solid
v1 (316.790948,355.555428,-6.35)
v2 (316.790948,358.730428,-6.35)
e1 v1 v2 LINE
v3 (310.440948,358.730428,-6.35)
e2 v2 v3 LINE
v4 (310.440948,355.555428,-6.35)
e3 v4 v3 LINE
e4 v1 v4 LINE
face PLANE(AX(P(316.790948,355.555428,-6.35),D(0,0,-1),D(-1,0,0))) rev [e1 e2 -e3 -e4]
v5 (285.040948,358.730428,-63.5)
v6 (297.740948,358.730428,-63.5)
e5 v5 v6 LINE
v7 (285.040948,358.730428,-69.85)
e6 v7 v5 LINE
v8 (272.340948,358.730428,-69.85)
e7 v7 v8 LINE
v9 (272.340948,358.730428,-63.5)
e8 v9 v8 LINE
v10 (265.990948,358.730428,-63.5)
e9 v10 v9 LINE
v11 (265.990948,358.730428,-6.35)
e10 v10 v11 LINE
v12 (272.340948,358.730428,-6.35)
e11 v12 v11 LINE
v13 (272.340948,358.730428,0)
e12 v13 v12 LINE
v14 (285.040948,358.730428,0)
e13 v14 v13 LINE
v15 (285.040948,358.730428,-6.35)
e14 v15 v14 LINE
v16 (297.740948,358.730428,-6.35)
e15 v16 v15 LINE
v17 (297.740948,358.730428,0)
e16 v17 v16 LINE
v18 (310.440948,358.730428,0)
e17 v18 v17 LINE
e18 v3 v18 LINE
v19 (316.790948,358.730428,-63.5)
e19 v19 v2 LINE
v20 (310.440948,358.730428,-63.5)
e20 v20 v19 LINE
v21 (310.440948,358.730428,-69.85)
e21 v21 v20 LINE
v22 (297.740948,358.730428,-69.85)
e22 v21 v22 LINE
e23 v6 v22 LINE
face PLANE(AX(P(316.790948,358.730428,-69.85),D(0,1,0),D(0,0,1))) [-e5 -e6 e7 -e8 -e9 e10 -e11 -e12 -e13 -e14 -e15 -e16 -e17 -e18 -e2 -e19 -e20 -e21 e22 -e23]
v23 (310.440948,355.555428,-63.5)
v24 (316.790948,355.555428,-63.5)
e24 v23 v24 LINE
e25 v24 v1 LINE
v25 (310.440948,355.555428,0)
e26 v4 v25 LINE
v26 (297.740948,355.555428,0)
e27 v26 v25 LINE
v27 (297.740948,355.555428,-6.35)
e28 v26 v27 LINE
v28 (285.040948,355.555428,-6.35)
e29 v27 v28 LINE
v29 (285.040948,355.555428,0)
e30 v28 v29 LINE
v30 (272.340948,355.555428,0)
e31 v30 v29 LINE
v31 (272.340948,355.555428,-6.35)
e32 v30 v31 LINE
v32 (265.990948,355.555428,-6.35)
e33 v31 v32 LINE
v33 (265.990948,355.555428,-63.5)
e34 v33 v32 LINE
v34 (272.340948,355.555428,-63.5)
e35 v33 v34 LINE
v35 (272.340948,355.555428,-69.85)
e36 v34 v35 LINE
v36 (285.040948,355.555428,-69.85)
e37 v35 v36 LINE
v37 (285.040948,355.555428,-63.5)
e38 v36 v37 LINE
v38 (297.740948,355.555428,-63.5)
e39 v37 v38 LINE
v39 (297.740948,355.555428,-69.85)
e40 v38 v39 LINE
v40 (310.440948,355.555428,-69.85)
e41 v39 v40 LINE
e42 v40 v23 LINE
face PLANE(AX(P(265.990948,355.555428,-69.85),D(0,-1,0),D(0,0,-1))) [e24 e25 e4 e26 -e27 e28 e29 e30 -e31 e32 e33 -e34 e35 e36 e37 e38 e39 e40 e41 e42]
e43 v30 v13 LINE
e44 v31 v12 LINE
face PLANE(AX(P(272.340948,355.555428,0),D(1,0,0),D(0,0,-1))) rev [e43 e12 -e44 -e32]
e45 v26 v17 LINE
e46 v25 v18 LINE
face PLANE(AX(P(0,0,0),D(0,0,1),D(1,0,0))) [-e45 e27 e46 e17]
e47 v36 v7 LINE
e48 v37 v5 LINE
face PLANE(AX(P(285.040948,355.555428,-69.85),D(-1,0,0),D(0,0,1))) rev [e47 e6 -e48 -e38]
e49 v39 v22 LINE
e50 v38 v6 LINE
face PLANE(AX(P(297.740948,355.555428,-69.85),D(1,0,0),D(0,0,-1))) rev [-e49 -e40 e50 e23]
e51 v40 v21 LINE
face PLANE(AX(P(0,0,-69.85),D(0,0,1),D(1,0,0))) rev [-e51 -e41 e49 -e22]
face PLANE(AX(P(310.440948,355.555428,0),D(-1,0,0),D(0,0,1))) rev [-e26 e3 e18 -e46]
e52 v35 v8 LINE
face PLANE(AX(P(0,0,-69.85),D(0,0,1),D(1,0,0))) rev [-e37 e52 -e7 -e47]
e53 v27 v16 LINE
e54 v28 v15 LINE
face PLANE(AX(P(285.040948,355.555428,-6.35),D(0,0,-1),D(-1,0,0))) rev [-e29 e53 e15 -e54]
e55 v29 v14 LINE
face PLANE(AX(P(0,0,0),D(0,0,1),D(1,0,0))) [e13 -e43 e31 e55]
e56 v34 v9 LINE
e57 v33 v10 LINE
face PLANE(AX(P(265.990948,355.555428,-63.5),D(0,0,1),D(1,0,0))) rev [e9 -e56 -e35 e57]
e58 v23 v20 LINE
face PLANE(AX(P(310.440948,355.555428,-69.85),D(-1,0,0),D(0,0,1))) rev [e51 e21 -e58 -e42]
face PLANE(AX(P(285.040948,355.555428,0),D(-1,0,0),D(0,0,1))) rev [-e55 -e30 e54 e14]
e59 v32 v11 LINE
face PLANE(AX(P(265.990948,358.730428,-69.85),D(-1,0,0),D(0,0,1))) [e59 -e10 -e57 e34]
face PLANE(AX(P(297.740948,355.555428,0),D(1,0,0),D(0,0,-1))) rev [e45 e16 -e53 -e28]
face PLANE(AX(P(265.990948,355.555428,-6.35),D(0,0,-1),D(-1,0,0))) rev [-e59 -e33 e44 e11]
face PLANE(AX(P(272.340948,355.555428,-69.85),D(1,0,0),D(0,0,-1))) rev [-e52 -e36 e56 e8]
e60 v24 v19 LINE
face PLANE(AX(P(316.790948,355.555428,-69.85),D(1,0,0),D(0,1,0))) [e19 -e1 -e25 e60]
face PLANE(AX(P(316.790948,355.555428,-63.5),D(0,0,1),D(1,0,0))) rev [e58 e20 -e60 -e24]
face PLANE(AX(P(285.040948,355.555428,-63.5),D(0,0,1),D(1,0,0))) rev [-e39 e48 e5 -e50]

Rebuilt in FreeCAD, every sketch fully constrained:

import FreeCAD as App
import Part
import Sketcher
Q = App.Units.Quantity


def add_polygon(sketch, points):
    """Adds a closed chain of lines whose ends are joined by coincident constraints."""
    first, n = sketch.GeometryCount, len(points)
    for a, b in zip(points, points[1:] + points[:1]):
        sketch.addGeometry(Part.LineSegment(App.Vector(*a, 0), App.Vector(*b, 0)), False)
    for i in range(n):
        sketch.addConstraint(Sketcher.Constraint("Coincident", first + i, 2, first + (i + 1) % n, 1))

doc = App.newDocument("Part")
params = doc.addObject("Spreadsheet::Sheet", "Params")
for row, (alias, value) in enumerate([
    ("sketch1_width", "2 in"),
    ("sketch1_height", "0.125 in"),
    ("pad1_length", "2.75 in"),
    ("sketch2_width", "0.5 in"),
], start=1):
    params.set(f"A{row}", alias)
    params.set(f"B{row}", "=" + value)
    params.setAlias(f"B{row}", alias)

body = doc.addObject("PartDesign::Body", "Body")

sketch1 = body.newObject("Sketcher::SketchObject", "Sketch")
sketch1.AttachmentSupport = (doc.getObject("XY_Plane"), [""])
sketch1.MapMode = "FlatFace"
add_polygon(sketch1, [(265.990948, 358.730428), (265.990948, 355.555428), (316.790948, 355.555428), (316.790948, 358.730428)])
sketch1.addConstraint(Sketcher.Constraint("Vertical", 0))
sketch1.addConstraint(Sketcher.Constraint("Horizontal", 1))
sketch1.addConstraint(Sketcher.Constraint("Vertical", 2))
sketch1.addConstraint(Sketcher.Constraint("Horizontal", 3))
sketch1.addConstraint(Sketcher.Constraint("DistanceX", 1, 1, 1, 2, Q("2 in")))
sketch1.addConstraint(Sketcher.Constraint("DistanceY", 0, 2, 0, 1, Q("0.125 in")))
sketch1.addConstraint(Sketcher.Constraint("DistanceX", -1, 1, 0, 2, 265.990948))
sketch1.addConstraint(Sketcher.Constraint("DistanceY", -1, 1, 0, 2, 355.555428))
sketch1.setExpression("Constraints[8]", "Params.sketch1_width")
sketch1.setExpression("Constraints[9]", "Params.sketch1_height")
pad1 = body.newObject("PartDesign::Pad", "Pad")
pad1.Profile = sketch1
pad1.setExpression("Length", "Params.pad1_length")
pad1.Reversed = True

sketch2 = body.newObject("Sketcher::SketchObject", "Sketch001")
sketch2.AttachmentSupport = (doc.getObject("XZ_Plane"), [""])
sketch2.MapMode = "FlatFace"
sketch2.AttachmentOffset = App.Placement(App.Vector(0, 0, -358.730428), App.Rotation())
add_polygon(sketch2, [(265.990948, -69.85), (265.990948, -63.5), (272.340948, -63.5), (272.340948, -69.85)])
add_polygon(sketch2, [(310.440948, -69.85), (310.440948, -63.5), (316.790948, -63.5), (316.790948, -69.85)])
add_polygon(sketch2, [(285.040948, -69.85), (285.040948, -63.5), (297.740948, -63.5), (297.740948, -69.85)])
add_polygon(sketch2, [(265.990948, -6.35), (265.990948, 0), (272.340948, 0), (272.340948, -6.35)])
add_polygon(sketch2, [(285.040948, -6.35), (285.040948, 0), (297.740948, 0), (297.740948, -6.35)])
add_polygon(sketch2, [(310.440948, -6.35), (310.440948, 0), (316.790948, 0), (316.790948, -6.35)])
sketch2.addConstraint(Sketcher.Constraint("Vertical", 0))
sketch2.addConstraint(Sketcher.Constraint("Horizontal", 1))
sketch2.addConstraint(Sketcher.Constraint("Vertical", 2))
sketch2.addConstraint(Sketcher.Constraint("Horizontal", 3))
sketch2.addConstraint(Sketcher.Constraint("Vertical", 4))
sketch2.addConstraint(Sketcher.Constraint("Horizontal", 5))
sketch2.addConstraint(Sketcher.Constraint("Vertical", 6))
sketch2.addConstraint(Sketcher.Constraint("Horizontal", 7))
sketch2.addConstraint(Sketcher.Constraint("Vertical", 8))
sketch2.addConstraint(Sketcher.Constraint("Horizontal", 9))
sketch2.addConstraint(Sketcher.Constraint("Vertical", 10))
sketch2.addConstraint(Sketcher.Constraint("Horizontal", 11))
sketch2.addConstraint(Sketcher.Constraint("Vertical", 12))
sketch2.addConstraint(Sketcher.Constraint("Horizontal", 13))
sketch2.addConstraint(Sketcher.Constraint("Vertical", 14))
sketch2.addConstraint(Sketcher.Constraint("Horizontal", 15))
sketch2.addConstraint(Sketcher.Constraint("Vertical", 16))
sketch2.addConstraint(Sketcher.Constraint("Horizontal", 17))
sketch2.addConstraint(Sketcher.Constraint("Vertical", 18))
sketch2.addConstraint(Sketcher.Constraint("Horizontal", 19))
sketch2.addConstraint(Sketcher.Constraint("Vertical", 20))
sketch2.addConstraint(Sketcher.Constraint("Horizontal", 21))
sketch2.addConstraint(Sketcher.Constraint("Vertical", 22))
sketch2.addConstraint(Sketcher.Constraint("Horizontal", 23))
sketch2.addConstraint(Sketcher.Constraint("PointOnObject", 12, 2, -1))
sketch2.addConstraint(Sketcher.Constraint("PointOnObject", 16, 2, -1))
sketch2.addConstraint(Sketcher.Constraint("PointOnObject", 20, 2, -1))
sketch2.addConstraint(Sketcher.Constraint("Horizontal", 1, 2, 4, 2))
sketch2.addConstraint(Sketcher.Constraint("Horizontal", 3, 2, 6, 2))
sketch2.addConstraint(Sketcher.Constraint("Horizontal", 5, 2, 8, 2))
sketch2.addConstraint(Sketcher.Constraint("Horizontal", 7, 2, 10, 2))
sketch2.addConstraint(Sketcher.Constraint("Horizontal", 15, 2, 18, 2))
sketch2.addConstraint(Sketcher.Constraint("Horizontal", 19, 2, 22, 2))
sketch2.addConstraint(Sketcher.Constraint("Vertical", 3, 2, 12, 2))
sketch2.addConstraint(Sketcher.Constraint("Vertical", 2, 2, 13, 2))
sketch2.addConstraint(Sketcher.Constraint("Vertical", 11, 2, 16, 2))
sketch2.addConstraint(Sketcher.Constraint("Vertical", 10, 2, 17, 2))
sketch2.addConstraint(Sketcher.Constraint("Vertical", 7, 2, 20, 2))
sketch2.addConstraint(Sketcher.Constraint("Vertical", 6, 2, 21, 2))
sketch2.addConstraint(Sketcher.Constraint("Equal", 3, 5))
sketch2.addConstraint(Sketcher.Constraint("Equal", 23, 0))
sketch2.addConstraint(Sketcher.Constraint("Equal", 10, 12))
sketch2.addConstraint(Sketcher.Constraint("DistanceX", 9, 1, 9, 2, Q("0.5 in")))
sketch2.addConstraint(Sketcher.Constraint("DistanceX", 0, 2, 5, 2, Q("2 in")))
sketch2.addConstraint(Sketcher.Constraint("DistanceX", 8, 2, 4, 2, Q("1 in")))
sketch2.addConstraint(Sketcher.Constraint("DistanceX", 13, 2, 9, 2, Q("1 in")))
sketch2.addConstraint(Sketcher.Constraint("DistanceY", 0, 2, -1, 1, Q("2.5 in")))
sketch2.addConstraint(Sketcher.Constraint("DistanceX", -1, 1, 0, 2, 265.990948))
sketch2.setExpression("Constraints[66]", "Params.sketch2_width")
pocket1 = body.newObject("PartDesign::Pocket", "Pocket")
pocket1.Profile = sketch2
pocket1.Type = "ThroughAll"
pocket1.Reversed = True

doc.recompute()
